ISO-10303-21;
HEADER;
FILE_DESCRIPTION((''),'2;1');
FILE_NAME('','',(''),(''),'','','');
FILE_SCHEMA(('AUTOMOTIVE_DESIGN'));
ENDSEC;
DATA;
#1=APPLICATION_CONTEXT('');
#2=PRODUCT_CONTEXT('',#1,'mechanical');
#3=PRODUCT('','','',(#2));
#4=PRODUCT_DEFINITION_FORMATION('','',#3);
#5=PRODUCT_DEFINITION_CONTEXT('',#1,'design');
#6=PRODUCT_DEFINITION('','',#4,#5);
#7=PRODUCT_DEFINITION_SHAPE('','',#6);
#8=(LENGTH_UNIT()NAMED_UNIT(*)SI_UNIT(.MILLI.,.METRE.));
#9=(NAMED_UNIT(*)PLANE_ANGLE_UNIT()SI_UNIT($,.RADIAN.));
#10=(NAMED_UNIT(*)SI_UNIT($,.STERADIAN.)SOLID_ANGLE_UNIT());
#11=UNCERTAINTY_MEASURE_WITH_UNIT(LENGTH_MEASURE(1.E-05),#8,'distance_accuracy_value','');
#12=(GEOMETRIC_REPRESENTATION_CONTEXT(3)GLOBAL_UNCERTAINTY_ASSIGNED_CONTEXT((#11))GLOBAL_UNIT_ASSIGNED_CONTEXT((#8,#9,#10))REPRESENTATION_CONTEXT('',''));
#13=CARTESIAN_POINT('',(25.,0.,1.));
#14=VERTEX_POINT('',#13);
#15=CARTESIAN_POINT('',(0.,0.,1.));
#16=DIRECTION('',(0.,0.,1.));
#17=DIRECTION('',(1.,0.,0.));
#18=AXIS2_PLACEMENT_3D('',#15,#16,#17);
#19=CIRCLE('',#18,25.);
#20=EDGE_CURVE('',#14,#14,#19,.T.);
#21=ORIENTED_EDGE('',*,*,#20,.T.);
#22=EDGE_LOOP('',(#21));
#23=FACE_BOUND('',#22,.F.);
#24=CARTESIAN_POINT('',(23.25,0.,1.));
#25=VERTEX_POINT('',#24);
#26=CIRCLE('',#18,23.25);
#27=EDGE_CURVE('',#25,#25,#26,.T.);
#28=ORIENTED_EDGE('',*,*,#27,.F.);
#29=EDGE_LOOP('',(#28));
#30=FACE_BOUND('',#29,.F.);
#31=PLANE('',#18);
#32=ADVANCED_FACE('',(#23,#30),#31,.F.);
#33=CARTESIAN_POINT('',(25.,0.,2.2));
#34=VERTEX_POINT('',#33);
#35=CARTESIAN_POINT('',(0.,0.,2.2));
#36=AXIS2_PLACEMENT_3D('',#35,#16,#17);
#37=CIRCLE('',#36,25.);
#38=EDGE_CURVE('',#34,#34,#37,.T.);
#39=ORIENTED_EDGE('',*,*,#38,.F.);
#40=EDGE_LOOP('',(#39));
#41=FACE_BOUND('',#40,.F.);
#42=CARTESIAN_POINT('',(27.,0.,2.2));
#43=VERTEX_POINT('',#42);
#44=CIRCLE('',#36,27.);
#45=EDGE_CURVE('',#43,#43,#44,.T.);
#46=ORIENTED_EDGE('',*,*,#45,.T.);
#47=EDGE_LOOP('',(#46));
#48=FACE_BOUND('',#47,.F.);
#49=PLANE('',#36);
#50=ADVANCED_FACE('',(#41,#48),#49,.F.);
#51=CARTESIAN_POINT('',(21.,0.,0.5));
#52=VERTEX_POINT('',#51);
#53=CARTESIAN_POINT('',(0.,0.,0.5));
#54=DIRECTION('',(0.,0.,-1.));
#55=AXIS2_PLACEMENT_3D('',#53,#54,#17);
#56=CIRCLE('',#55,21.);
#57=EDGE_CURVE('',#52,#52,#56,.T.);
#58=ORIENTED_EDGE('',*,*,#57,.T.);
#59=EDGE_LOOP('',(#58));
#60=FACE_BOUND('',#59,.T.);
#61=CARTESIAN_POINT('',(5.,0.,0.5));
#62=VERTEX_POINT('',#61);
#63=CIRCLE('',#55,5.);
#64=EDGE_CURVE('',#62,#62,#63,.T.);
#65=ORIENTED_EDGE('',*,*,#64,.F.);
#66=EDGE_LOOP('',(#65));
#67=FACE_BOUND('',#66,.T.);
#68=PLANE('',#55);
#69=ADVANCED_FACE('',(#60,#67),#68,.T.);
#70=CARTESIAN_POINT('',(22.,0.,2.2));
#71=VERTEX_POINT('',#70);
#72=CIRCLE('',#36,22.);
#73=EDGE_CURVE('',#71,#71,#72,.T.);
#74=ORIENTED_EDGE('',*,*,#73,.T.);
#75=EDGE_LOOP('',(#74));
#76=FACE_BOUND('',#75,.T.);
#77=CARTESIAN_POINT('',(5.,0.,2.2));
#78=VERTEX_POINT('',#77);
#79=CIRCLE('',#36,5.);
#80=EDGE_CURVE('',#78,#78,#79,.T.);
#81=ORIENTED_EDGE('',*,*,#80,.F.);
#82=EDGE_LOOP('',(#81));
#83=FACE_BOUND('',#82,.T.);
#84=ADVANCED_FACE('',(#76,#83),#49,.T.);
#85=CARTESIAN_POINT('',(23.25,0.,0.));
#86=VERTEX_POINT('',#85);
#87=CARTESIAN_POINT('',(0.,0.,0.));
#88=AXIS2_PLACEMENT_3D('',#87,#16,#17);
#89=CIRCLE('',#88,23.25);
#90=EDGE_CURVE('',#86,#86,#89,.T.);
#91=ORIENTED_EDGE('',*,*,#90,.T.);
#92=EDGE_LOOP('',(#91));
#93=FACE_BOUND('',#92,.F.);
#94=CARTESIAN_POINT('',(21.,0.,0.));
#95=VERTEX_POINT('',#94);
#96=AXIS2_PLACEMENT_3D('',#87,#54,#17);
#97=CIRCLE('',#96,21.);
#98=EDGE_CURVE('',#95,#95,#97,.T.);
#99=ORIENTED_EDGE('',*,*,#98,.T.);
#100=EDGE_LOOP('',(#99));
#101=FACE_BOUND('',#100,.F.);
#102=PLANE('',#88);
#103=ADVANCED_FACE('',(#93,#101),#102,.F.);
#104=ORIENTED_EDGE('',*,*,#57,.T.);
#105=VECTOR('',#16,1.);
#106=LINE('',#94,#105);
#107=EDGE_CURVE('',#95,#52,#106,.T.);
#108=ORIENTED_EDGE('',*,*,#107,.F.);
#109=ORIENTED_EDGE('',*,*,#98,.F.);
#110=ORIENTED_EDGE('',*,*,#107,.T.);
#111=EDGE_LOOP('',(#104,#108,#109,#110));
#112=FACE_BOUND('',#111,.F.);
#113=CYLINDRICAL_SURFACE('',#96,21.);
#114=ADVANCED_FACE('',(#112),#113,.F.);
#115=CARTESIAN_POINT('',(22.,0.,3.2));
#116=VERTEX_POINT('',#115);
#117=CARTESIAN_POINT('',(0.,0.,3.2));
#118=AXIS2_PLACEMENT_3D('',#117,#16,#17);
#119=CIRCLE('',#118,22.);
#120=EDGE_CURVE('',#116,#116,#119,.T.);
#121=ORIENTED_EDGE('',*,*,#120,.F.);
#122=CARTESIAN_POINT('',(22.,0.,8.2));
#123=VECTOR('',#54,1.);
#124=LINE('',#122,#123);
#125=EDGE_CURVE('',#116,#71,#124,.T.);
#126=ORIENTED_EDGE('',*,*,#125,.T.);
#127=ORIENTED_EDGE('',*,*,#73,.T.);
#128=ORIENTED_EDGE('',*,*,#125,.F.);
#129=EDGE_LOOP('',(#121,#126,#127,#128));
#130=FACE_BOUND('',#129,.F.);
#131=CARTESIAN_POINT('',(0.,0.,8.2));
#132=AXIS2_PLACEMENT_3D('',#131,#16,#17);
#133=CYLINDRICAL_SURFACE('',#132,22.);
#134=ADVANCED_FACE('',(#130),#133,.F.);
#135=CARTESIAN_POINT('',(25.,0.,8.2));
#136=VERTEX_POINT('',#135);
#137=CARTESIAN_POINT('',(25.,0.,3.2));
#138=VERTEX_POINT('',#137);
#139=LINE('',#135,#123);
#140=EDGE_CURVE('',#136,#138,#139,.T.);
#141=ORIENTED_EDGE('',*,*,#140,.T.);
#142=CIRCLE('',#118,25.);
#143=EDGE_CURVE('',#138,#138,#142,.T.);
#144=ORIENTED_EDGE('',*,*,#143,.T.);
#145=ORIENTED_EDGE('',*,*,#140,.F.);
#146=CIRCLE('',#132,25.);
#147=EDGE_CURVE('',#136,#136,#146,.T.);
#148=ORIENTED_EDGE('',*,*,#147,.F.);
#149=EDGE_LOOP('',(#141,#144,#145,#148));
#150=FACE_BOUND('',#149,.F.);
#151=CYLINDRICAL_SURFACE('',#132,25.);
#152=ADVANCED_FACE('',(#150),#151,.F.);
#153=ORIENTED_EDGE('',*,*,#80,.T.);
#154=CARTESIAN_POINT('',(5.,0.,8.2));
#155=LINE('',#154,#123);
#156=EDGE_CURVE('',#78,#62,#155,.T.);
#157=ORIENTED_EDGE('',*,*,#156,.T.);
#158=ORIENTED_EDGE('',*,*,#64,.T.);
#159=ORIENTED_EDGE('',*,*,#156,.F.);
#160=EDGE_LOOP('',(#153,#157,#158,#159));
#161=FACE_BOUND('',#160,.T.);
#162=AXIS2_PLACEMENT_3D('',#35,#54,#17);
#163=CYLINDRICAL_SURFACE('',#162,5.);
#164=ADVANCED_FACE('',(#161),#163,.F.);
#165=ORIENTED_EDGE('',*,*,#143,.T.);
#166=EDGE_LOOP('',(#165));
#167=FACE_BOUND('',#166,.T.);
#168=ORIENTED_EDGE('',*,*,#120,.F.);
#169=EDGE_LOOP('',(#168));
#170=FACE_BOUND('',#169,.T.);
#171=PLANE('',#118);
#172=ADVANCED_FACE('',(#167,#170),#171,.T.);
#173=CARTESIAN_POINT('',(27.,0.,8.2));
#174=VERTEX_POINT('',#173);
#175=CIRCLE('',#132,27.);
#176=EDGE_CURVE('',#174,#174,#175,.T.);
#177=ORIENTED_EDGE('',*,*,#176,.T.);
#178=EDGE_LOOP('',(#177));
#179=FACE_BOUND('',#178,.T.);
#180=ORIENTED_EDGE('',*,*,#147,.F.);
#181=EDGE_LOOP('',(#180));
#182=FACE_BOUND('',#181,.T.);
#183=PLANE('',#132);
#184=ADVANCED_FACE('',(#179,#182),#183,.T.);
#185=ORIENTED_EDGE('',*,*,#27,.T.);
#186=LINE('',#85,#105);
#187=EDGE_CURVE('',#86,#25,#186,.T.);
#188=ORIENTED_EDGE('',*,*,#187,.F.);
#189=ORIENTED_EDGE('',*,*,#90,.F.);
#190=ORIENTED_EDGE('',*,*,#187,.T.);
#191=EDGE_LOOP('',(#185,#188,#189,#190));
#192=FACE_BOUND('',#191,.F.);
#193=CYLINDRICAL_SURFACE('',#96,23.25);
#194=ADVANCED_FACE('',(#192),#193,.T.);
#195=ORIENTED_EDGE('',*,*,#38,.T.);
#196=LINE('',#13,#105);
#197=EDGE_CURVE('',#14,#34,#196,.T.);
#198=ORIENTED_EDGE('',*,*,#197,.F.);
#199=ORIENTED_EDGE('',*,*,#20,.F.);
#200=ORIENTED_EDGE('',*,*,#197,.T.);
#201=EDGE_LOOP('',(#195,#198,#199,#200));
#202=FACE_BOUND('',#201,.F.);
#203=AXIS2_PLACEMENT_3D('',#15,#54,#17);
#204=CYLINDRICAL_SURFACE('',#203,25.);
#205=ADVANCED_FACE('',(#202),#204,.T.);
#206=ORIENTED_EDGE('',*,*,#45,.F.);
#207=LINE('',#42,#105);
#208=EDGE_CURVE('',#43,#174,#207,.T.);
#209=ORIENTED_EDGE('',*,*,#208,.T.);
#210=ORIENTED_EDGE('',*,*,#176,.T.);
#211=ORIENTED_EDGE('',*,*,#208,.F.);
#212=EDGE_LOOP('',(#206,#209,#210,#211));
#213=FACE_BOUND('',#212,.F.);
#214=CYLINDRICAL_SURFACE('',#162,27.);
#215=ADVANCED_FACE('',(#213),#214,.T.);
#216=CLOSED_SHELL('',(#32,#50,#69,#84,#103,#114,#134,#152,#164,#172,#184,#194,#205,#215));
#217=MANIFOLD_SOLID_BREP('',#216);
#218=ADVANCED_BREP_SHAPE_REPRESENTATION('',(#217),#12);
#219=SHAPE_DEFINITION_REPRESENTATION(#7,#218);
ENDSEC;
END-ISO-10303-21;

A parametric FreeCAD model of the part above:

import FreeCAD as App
import Part
import Sketcher
Q = App.Units.Quantity

doc = App.newDocument("Part")
body = doc.addObject("PartDesign::Body", "Body")

# Sketch on XY plane
sketch1 = body.newObject("Sketcher::SketchObject", "Sketch")
sketch1.AttachmentSupport = (doc.getObject("XY_Plane"), [""])
sketch1.MapMode = "FlatFace"
sketch1.addGeometry(Part.Circle(App.Vector(0, 0, 0), App.Vector(0, 0, 1), 23), False)
sketch1.addGeometry(Part.Circle(App.Vector(0, 0, 0), App.Vector(0, 0, 1), 5), False)
sketch1.addConstraint(Sketcher.Constraint("Coincident", 0, 3, -1, 1))
sketch1.addConstraint(Sketcher.Constraint("Coincident", 1, 3, -1, 1))
sketch1.addConstraint(Sketcher.Constraint("Diameter", 1, Q("10 mm")))
sketch1.addConstraint(Sketcher.Constraint("Diameter", 0, Q("46.5 mm")))
pad1 = body.newObject("PartDesign::Pad", "Pad")
pad1.Profile = sketch1
pad1.Length = 1

# Sketch on XY plane
sketch2 = body.newObject("Sketcher::SketchObject", "Sketch001")
sketch2.AttachmentSupport = (doc.getObject("XY_Plane"), [""])
sketch2.MapMode = "FlatFace"
sketch2.AttachmentOffset = App.Placement(App.Vector(0, 0, 1), App.Rotation())
sketch2.addGeometry(Part.Circle(App.Vector(0, 0, 0), App.Vector(0, 0, 1), 25), False)
sketch2.addGeometry(Part.Circle(App.Vector(0, 0, 0), App.Vector(0, 0, 1), 5), False)
sketch2.addConstraint(Sketcher.Constraint("Coincident", 0, 3, -1, 1))
sketch2.addConstraint(Sketcher.Constraint("Coincident", 1, 3, -1, 1))
sketch2.addConstraint(Sketcher.Constraint("Diameter", 0, Q("50 mm")))
sketch2.addConstraint(Sketcher.Constraint("Diameter", 1, Q("10 mm")))
pad2 = body.newObject("PartDesign::Pad", "Pad001")
pad2.Profile = sketch2
pad2.Length = 1.2

# Sketch on XY plane
sketch3 = body.newObject("Sketcher::SketchObject", "Sketch002")
sketch3.AttachmentSupport = (doc.getObject("XY_Plane"), [""])
sketch3.MapMode = "FlatFace"
sketch3.AttachmentOffset = App.Placement(App.Vector(0, 0, 2.2), App.Rotation())
sketch3.addGeometry(Part.Circle(App.Vector(0, 0, 0), App.Vector(0, 0, 1), 27), False)
sketch3.addGeometry(Part.Circle(App.Vector(0, 0, 0), App.Vector(0, 0, 1), 5), False)
sketch3.addConstraint(Sketcher.Constraint("Coincident", 0, 3, -1, 1))
sketch3.addConstraint(Sketcher.Constraint("Coincident", 1, 3, -1, 1))
sketch3.addConstraint(Sketcher.Constraint("Diameter", 0, Q("54 mm")))
sketch3.addConstraint(Sketcher.Constraint("Diameter", 1, Q("10 mm")))
pad3 = body.newObject("PartDesign::Pad", "Pad002")
pad3.Profile = sketch3
pad3.Length = 6

# Sketch on XY plane
sketch4 = body.newObject("Sketcher::SketchObject", "Sketch003")
sketch4.AttachmentSupport = (doc.getObject("XY_Plane"), [""])
sketch4.MapMode = "FlatFace"
sketch4.AttachmentOffset = App.Placement(App.Vector(0, 0, 8.2), App.Rotation())
sketch4.addGeometry(Part.Circle(App.Vector(0, 0, 0), App.Vector(0, 0, 1), 22), False)
sketch4.addGeometry(Part.Circle(App.Vector(0, 0, 0), App.Vector(0, 0, 1), 5), False)
sketch4.addConstraint(Sketcher.Constraint("Coincident", 0, 3, -1, 1))
sketch4.addConstraint(Sketcher.Constraint("Coincident", 1, 3, -1, 1))
sketch4.addConstraint(Sketcher.Constraint("Diameter", 0, Q("44 mm")))
sketch4.addConstraint(Sketcher.Constraint("Diameter", 1, Q("10 mm")))
pocket1 = body.newObject("PartDesign::Pocket", "Pocket")
pocket1.Profile = sketch4
pocket1.Length = 6

# Sketch on XY plane
sketch5 = body.newObject("Sketcher::SketchObject", "Sketch004")
sketch5.AttachmentSupport = (doc.getObject("XY_Plane"), [""])
sketch5.MapMode = "FlatFace"
sketch5.AttachmentOffset = App.Placement(App.Vector(0, 0, 8.2), App.Rotation())
sketch5.addGeometry(Part.Circle(App.Vector(0, 0, 0), App.Vector(0, 0, 1), 25), False)
sketch5.addGeometry(Part.Circle(App.Vector(0, 0, 0), App.Vector(0, 0, 1), 22), False)
sketch5.addConstraint(Sketcher.Constraint("Coincident", 0, 3, -1, 1))
sketch5.addConstraint(Sketcher.Constraint("Coincident", 1, 3, -1, 1))
sketch5.addConstraint(Sketcher.Constraint("Diameter", 0, Q("50 mm")))
sketch5.addConstraint(Sketcher.Constraint("Diameter", 1, Q("44 mm")))
pocket2 = body.newObject("PartDesign::Pocket", "Pocket001")
pocket2.Profile = sketch5
pocket2.Length = 5

# Sketch on XY plane
sketch6 = body.newObject("Sketcher::SketchObject", "Sketch005")
sketch6.AttachmentSupport = (doc.getObject("XY_Plane"), [""])
sketch6.MapMode = "FlatFace"
sketch6.addGeometry(Part.Circle(App.Vector(0, 0, 0), App.Vector(0, 0, 1), 21), False)
sketch6.addGeometry(Part.Circle(App.Vector(0, 0, 0), App.Vector(0, 0, 1), 5), False)
sketch6.addConstraint(Sketcher.Constraint("Coincident", 0, 3, -1, 1))
sketch6.addConstraint(Sketcher.Constraint("Coincident", 1, 3, -1, 1))
sketch6.addConstraint(Sketcher.Constraint("Diameter", 0, Q("42 mm")))
sketch6.addConstraint(Sketcher.Constraint("Diameter", 1, Q("10 mm")))
pocket3 = body.newObject("PartDesign::Pocket", "Pocket002")
pocket3.Profile = sketch6
pocket3.Length = 0.5
pocket3.Reversed = True

doc.recompute()
